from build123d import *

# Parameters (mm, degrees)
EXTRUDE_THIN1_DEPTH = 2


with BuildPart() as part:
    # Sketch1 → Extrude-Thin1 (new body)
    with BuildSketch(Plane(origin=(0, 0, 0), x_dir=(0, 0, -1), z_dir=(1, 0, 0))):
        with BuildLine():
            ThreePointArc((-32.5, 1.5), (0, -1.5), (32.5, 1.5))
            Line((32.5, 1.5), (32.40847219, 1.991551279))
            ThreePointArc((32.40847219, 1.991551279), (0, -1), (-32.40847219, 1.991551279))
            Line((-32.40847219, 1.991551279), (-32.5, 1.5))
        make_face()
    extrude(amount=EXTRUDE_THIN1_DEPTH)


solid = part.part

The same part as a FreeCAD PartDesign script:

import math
import FreeCAD as App
import Part
import Sketcher

V = App.Vector

doc = App.newDocument("Part")
body = doc.addObject("PartDesign::Body", "Body")

# Sketch on YZ plane
sketch1 = body.newObject("Sketcher::SketchObject", "Sketch")
sketch1.AttachmentSupport = (doc.getObject("YZ_Plane"), [""])
sketch1.MapMode = "FlatFace"
sketch1.addGeometry(Part.ArcOfCircle(Part.Circle(V(176.041667, 0, 0), V(0, 0, 1), 177.541667), math.radians(169.452208), math.radians(190.547792)), False)
sketch1.addGeometry(Part.LineSegment(V(1.5, -32.5, 0), V(1.991551, -32.408472, 0)), False)
sketch1.addGeometry(Part.ArcOfCircle(Part.Circle(V(176.041667, 0, 0), V(0, 0, 1), 177.041667), math.radians(169.452208), math.radians(190.547792)), False)
sketch1.addGeometry(Part.LineSegment(V(1.991551, 32.408472, 0), V(1.5, 32.5, 0)), False)
sketch1.addConstraint(Sketcher.Constraint("Coincident", 0, 2, 1, 1))
sketch1.addConstraint(Sketcher.Constraint("Coincident", 1, 2, 2, 2))
sketch1.addConstraint(Sketcher.Constraint("Coincident", 2, 1, 3, 1))
sketch1.addConstraint(Sketcher.Constraint("Coincident", 3, 2, 0, 1))
sketch1.addConstraint(Sketcher.Constraint("Coincident", 2, 3, 0, 3))
sketch1.addConstraint(Sketcher.Constraint("Symmetric", 1, 2, 2, 1, -1))
sketch1.addConstraint(Sketcher.Constraint("Vertical", 0, 2, 3, 2))
sketch1.addConstraint(Sketcher.Constraint("DistanceY", 0, 2, 3, 2, 65.0))
sketch1.addConstraint(Sketcher.Constraint("Distance", 1, 0.5))
sketch1.addConstraint(Sketcher.Constraint("DistanceX", -1, 1, 0, 2, 1.5))
sketch1.addConstraint(Sketcher.Constraint("Radius", 0, 177.541667))
sketch1.addConstraint(Sketcher.Constraint("DistanceX", -1, 1, 1, 2, 1.991551))
pad1 = body.newObject("PartDesign::Pad", "Pad")
pad1.Profile = sketch1
pad1.Length = 2

doc.recompute()
